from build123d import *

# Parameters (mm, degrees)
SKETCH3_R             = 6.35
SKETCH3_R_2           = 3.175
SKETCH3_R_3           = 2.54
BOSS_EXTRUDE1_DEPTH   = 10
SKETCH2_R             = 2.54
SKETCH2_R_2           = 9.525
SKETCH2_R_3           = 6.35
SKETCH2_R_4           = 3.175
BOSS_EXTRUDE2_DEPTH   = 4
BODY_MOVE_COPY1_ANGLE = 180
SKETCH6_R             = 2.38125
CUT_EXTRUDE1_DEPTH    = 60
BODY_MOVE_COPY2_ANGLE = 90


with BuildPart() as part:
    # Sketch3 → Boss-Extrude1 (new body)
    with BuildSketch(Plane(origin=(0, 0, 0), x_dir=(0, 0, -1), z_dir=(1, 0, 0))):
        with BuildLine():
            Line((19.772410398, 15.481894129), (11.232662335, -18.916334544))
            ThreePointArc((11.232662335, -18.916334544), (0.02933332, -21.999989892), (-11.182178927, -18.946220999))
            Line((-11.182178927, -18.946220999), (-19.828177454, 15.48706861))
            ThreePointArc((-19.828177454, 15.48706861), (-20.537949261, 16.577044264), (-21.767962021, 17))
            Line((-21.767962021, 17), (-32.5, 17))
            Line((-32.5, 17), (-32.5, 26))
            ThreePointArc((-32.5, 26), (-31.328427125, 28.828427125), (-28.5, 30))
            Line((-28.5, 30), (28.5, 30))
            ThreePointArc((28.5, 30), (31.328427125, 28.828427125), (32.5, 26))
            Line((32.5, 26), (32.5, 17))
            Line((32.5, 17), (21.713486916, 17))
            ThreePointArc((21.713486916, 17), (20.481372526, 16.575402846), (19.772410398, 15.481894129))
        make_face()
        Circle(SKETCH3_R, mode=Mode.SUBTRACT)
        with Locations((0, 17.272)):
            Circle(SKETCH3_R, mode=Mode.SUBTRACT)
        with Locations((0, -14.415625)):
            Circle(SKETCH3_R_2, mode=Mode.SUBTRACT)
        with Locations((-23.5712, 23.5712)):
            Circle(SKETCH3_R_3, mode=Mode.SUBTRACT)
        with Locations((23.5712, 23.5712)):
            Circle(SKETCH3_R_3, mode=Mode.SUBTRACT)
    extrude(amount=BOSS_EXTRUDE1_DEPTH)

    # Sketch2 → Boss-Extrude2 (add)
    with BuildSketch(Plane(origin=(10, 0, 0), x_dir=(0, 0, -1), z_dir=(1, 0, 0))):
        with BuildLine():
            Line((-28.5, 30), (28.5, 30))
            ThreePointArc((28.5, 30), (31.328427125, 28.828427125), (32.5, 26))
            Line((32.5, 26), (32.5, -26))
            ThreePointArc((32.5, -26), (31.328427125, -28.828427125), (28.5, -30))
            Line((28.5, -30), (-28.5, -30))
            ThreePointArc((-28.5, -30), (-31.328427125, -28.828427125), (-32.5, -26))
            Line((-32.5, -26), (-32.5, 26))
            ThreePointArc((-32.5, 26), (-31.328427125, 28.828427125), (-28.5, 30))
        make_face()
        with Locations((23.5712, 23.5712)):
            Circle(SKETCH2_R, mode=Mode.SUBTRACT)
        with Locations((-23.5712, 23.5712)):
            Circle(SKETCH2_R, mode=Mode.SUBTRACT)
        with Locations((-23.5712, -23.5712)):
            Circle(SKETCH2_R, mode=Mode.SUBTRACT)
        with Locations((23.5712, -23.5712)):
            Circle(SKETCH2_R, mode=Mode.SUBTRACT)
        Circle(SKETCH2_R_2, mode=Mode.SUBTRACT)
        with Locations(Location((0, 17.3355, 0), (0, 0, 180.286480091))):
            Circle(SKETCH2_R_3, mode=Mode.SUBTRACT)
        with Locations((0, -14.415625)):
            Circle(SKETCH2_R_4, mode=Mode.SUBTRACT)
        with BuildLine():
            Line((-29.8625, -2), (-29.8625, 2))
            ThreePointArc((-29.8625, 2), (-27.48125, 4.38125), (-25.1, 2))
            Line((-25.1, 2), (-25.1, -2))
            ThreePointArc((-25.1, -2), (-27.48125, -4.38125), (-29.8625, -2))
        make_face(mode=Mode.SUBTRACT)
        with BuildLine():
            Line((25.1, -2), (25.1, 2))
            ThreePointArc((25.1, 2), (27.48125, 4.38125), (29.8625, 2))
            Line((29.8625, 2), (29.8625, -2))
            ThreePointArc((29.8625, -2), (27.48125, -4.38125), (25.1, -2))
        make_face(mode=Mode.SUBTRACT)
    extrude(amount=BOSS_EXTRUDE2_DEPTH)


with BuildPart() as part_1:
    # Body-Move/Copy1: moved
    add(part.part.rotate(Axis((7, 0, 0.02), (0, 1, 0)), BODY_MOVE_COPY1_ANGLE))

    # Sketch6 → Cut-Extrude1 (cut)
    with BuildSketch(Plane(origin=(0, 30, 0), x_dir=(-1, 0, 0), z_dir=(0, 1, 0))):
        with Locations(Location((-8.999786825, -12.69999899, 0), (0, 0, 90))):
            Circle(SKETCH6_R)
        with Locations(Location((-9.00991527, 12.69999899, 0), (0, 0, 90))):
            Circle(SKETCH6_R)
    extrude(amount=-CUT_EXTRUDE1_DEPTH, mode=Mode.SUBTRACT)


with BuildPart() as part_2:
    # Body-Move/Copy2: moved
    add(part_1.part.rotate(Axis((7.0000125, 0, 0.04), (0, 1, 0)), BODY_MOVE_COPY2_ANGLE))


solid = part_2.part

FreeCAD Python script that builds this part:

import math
import FreeCAD as App
import Part
import Sketcher
from FreeCAD import Vector
Q = App.Units.Quantity

doc = App.newDocument("Part")
body = doc.addObject("PartDesign::Body", "Body")

sketch1 = body.newObject("Sketcher::SketchObject", "Sketch")
sketch1.AttachmentSupport = (doc.getObject("YZ_Plane"), [""])
sketch1.MapMode = "FlatFace"
sketch1.addGeometry([
    Part.LineSegment(Vector(-18.916335, -11.232662, 0), Vector(15.481894, -19.77241, 0)),
    Part.ArcOfCircle(Part.Circle(Vector(15, -21.713487, 0), Vector(0, 0, 1), 2), math.radians(0), math.radians(76.057556)),
    Part.LineSegment(Vector(17, -21.713487, 0), Vector(17, -32.5, 0)),
    Part.LineSegment(Vector(17, -32.5, 0), Vector(26, -32.5, 0)),
    Part.ArcOfCircle(Part.Circle(Vector(26, -28.5, 0), Vector(0, 0, 1), 4), math.radians(-90), math.radians(0)),
    Part.LineSegment(Vector(30, -28.5, 0), Vector(30, 28.5, 0)),
    Part.ArcOfCircle(Part.Circle(Vector(26, 28.5, 0), Vector(0, 0, 1), 4), math.radians(0), math.radians(90)),
    Part.LineSegment(Vector(26, 32.5, 0), Vector(17, 32.5, 0)),
    Part.LineSegment(Vector(17, 32.5, 0), Vector(17, 21.767962, 0)),
    Part.ArcOfCircle(Part.Circle(Vector(15, 21.767962, 0), Vector(0, 0, 1), 2), math.radians(-75.904768), math.radians(0)),
    Part.LineSegment(Vector(15.487069, 19.828177, 0), Vector(-18.946221, 11.182179, 0)),
    Part.ArcOfCircle(Part.Circle(Vector(0, 0, 0), Vector(0, 0, 1), 22.000009), math.radians(149.450628), math.radians(210.702161)),
    Part.Circle(Vector(-14.415625, 0, 0), Vector(0, 0, 1), 3.175),
    Part.Circle(Vector(0, 0, 0), Vector(0, 0, 1), 6.35),
    Part.Circle(Vector(23.5712, -23.5712, 0), Vector(0, 0, 1), 2.54),
    Part.Circle(Vector(17.272, 0, 0), Vector(0, 0, 1), 6.35),
    Part.Circle(Vector(23.5712, 23.5712, 0), Vector(0, 0, 1), 2.54),
], False)
sketch1.addConstraint([
    Sketcher.Constraint("Coincident", 0, 2, 1, 2),
    Sketcher.Constraint("Coincident", 1, 1, 2, 1),
    Sketcher.Constraint("Coincident", 2, 2, 3, 1),
    Sketcher.Constraint("Coincident", 3, 2, 4, 1),
    Sketcher.Constraint("Coincident", 4, 2, 5, 1),
    Sketcher.Constraint("Coincident", 5, 2, 6, 1),
    Sketcher.Constraint("Coincident", 6, 2, 7, 1),
    Sketcher.Constraint("Coincident", 7, 2, 8, 1),
    Sketcher.Constraint("Coincident", 8, 2, 9, 2),
    Sketcher.Constraint("Coincident", 9, 1, 10, 1),
    Sketcher.Constraint("Coincident", 10, 2, 11, 1),
    Sketcher.Constraint("Coincident", 11, 2, 0, 1),
    Sketcher.Constraint("Vertical", 2),
    Sketcher.Constraint("Horizontal", 3),
    Sketcher.Constraint("Vertical", 5),
    Sketcher.Constraint("Horizontal", 7),
    Sketcher.Constraint("Vertical", 8),
    Sketcher.Constraint("Coincident", 11, 3, -1, 1),
    Sketcher.Constraint("Coincident", 13, 3, -1, 1),
    Sketcher.Constraint("PointOnObject", 12, 3, -1),
    Sketcher.Constraint("PointOnObject", 15, 3, -1),
    Sketcher.Constraint("Radius", 1, Q("2 mm")),
    Sketcher.Constraint("Radius", 4, Q("4 mm")),
    Sketcher.Constraint("Radius", 6, Q("4 mm")),
    Sketcher.Constraint("Radius", 9, Q("2 mm")),
    Sketcher.Constraint("Diameter", 13, Q("12.7 mm")),
    Sketcher.Constraint("Diameter", 15, Q("12.7 mm")),
    Sketcher.Constraint("Diameter", 12, Q("6.35 mm")),
    Sketcher.Constraint("Diameter", 14, Q("5.08 mm")),
    Sketcher.Constraint("Diameter", 16, Q("5.08 mm")),
    Sketcher.Constraint("DistanceX", 3, 1, 3, 2, Q("9 mm")),
    Sketcher.Constraint("DistanceX", 7, 2, 7, 1, Q("9 mm")),
    Sketcher.Constraint("DistanceY", 5, 1, 5, 2, Q("57 mm")),
    Sketcher.Constraint("DistanceX", -1, 1, 1, 3, Q("15 mm")),
    Sketcher.Constraint("DistanceX", -1, 1, 4, 3, Q("26 mm")),
    Sketcher.Constraint("DistanceX", -1, 1, 9, 3, Q("15 mm")),
    Sketcher.Constraint("DistanceY", 4, 3, 6, 3, Q("57 mm")),
    Sketcher.Constraint("DistanceY", 3, 2, 4, 2, Q("4 mm")),
    Sketcher.Constraint("DistanceY", 4, 3, -1, 1, Q("28.5 mm")),
    Sketcher.Constraint("Radius", 11, Q("22.000009 mm")),
    Sketcher.Constraint("DistanceX", -1, 1, 15, 3, Q("17.272 mm")),
    Sketcher.Constraint("DistanceY", 10, 2, 9, 1, Q("8.645999 mm")),
    Sketcher.Constraint("DistanceX", -1, 1, 14, 3, Q("23.5712 mm")),
    Sketcher.Constraint("DistanceY", 14, 3, -1, 1, Q("23.5712 mm")),
    Sketcher.Constraint("DistanceX", -1, 1, 16, 3, Q("23.5712 mm")),
    Sketcher.Constraint("DistanceY", -1, 1, 16, 3, Q("23.5712 mm")),
    Sketcher.Constraint("Distance", 10, Q("35.502179 mm")),
    Sketcher.Constraint("DistanceY", 2, 2, 2, 1, Q("10.786513 mm")),
    Sketcher.Constraint("DistanceY", 8, 2, 8, 1, Q("10.732038 mm")),
    Sketcher.Constraint("DistanceY", 0, 2, -1, 1, Q("19.77241 mm")),
    Sketcher.Constraint("DistanceX", -1, 1, 9, 1, Q("15.487069 mm")),
    Sketcher.Constraint("DistanceY", 1, 3, 9, 3, Q("43.481449 mm")),
    Sketcher.Constraint("DistanceX", 11, 2, 12, 3, Q("4.50071 mm")),
    Sketcher.Constraint("DistanceY", 11, 2, 10, 2, Q("22.414841 mm")),
])
pad1 = body.newObject("PartDesign::Pad", "Pad")
pad1.Profile = sketch1
pad1.Length = 10

sketch2 = body.newObject("Sketcher::SketchObject", "Sketch001")
sketch2.AttachmentSupport = (doc.getObject("YZ_Plane"), [""])
sketch2.MapMode = "FlatFace"
sketch2.AttachmentOffset = App.Placement(Vector(0, 0, 10), App.Rotation())
sketch2.addGeometry([
    Part.LineSegment(Vector(30, -28.5, 0), Vector(30, 28.5, 0)),
    Part.ArcOfCircle(Part.Circle(Vector(26, 28.5, 0), Vector(0, 0, 1), 4), math.radians(0), math.radians(90)),
    Part.LineSegment(Vector(26, 32.5, 0), Vector(-26, 32.5, 0)),
    Part.ArcOfCircle(Part.Circle(Vector(-26, 28.5, 0), Vector(0, 0, 1), 4), math.radians(90), math.radians(180)),
    Part.LineSegment(Vector(-30, 28.5, 0), Vector(-30, -28.5, 0)),
    Part.ArcOfCircle(Part.Circle(Vector(-26, -28.5, 0), Vector(0, 0, 1), 4), math.radians(180), math.radians(270)),
    Part.LineSegment(Vector(-26, -32.5, 0), Vector(26, -32.5, 0)),
    Part.ArcOfCircle(Part.Circle(Vector(26, -28.5, 0), Vector(0, 0, 1), 4), math.radians(-90), math.radians(0)),
    Part.Circle(Vector(-23.5712, -23.5712, 0), Vector(0, 0, 1), 2.54),
    Part.Circle(Vector(-14.415625, 0, 0), Vector(0, 0, 1), 3.175),
    Part.LineSegment(Vector(-2, -25.1, 0), Vector(2, -25.1, 0)),
    Part.ArcOfCircle(Part.Circle(Vector(2, -27.48125, 0), Vector(0, 0, 1), 2.38125), math.radians(-90), math.radians(90)),
    Part.LineSegment(Vector(2, -29.8625, 0), Vector(-2, -29.8625, 0)),
    Part.ArcOfCircle(Part.Circle(Vector(-2, -27.48125, 0), Vector(0, 0, 1), 2.38125), math.radians(90), math.radians(270)),
    Part.Circle(Vector(0, 0, 0), Vector(0, 0, 1), 9.525),
    Part.Circle(Vector(-23.5712, 23.5712, 0), Vector(0, 0, 1), 2.54),
    Part.LineSegment(Vector(-2, 29.8625, 0), Vector(2, 29.8625, 0)),
    Part.ArcOfCircle(Part.Circle(Vector(2, 27.48125, 0), Vector(0, 0, 1), 2.38125), math.radians(-90), math.radians(90)),
    Part.LineSegment(Vector(2, 25.1, 0), Vector(-2, 25.1, 0)),
    Part.ArcOfCircle(Part.Circle(Vector(-2, 27.48125, 0), Vector(0, 0, 1), 2.38125), math.radians(90), math.radians(270)),
    Part.Circle(Vector(23.5712, -23.5712, 0), Vector(0, 0, 1), 2.54),
    Part.Circle(Vector(17.3355, 0, 0), Vector(0, 0, 1), 6.35),
    Part.Circle(Vector(23.5712, 23.5712, 0), Vector(0, 0, 1), 2.54),
], False)
sketch2.addConstraint([
    Sketcher.Constraint("Tangent", 0, 2, 1, 1),
    Sketcher.Constraint("Tangent", 1, 2, 2, 1),
    Sketcher.Constraint("Tangent", 2, 2, 3, 1),
    Sketcher.Constraint("Tangent", 3, 2, 4, 1),
    Sketcher.Constraint("Tangent", 4, 2, 5, 1),
    Sketcher.Constraint("Tangent", 5, 2, 6, 1),
    Sketcher.Constraint("Tangent", 6, 2, 7, 1),
    Sketcher.Constraint("Tangent", 7, 2, 0, 1),
    Sketcher.Constraint("Tangent", 10, 2, 11, 2),
    Sketcher.Constraint("Tangent", 11, 1, 12, 1),
    Sketcher.Constraint("Tangent", 12, 2, 13, 2),
    Sketcher.Constraint("Tangent", 13, 1, 10, 1),
    Sketcher.Constraint("Tangent", 16, 2, 17, 2),
    Sketcher.Constraint("Tangent", 17, 1, 18, 1),
    Sketcher.Constraint("Tangent", 18, 2, 19, 2),
    Sketcher.Constraint("Tangent", 19, 1, 16, 1),
    Sketcher.Constraint("Vertical", 0),
    Sketcher.Constraint("Horizontal", 2),
    Sketcher.Constraint("Vertical", 4),
    Sketcher.Constraint("Horizontal", 6),
    Sketcher.Constraint("Horizontal", 10),
    Sketcher.Constraint("Horizontal", 12),
    Sketcher.Constraint("Horizontal", 16),
    Sketcher.Constraint("Horizontal", 18),
    Sketcher.Constraint("Coincident", 14, 3, -1, 1),
    Sketcher.Constraint("Equal", 1, 3),
    Sketcher.Constraint("Equal", 3, 5),
    Sketcher.Constraint("Equal", 5, 7),
    Sketcher.Constraint("Equal", 8, 15),
    Sketcher.Constraint("Equal", 13, 17),
    Sketcher.Constraint("Equal", 15, 20),
    Sketcher.Constraint("Equal", 20, 22),
    Sketcher.Constraint("Symmetric", 1, 3, 5, 3, -1, 1),
    Sketcher.Constraint("Symmetric", 13, 3, 17, 3, -1, 1),
    Sketcher.Constraint("Symmetric", 15, 3, 20, 3, -1, 1),
    Sketcher.Constraint("Symmetric", 8, 3, 22, 3, -1, 1),
    Sketcher.Constraint("Symmetric", 8, 3, 20, 3, -2),
    Sketcher.Constraint("PointOnObject", 9, 3, -1),
    Sketcher.Constraint("PointOnObject", 21, 3, -1),
    Sketcher.Constraint("Vertical", 11, 3, 17, 3),
    Sketcher.Constraint("Vertical", 13, 3, 19, 3),
    Sketcher.Constraint("Radius", 1, Q("4 mm")),
    Sketcher.Constraint("Diameter", 21, Q("12.7 mm")),
    Sketcher.Constraint("Diameter", 8, Q("5.08 mm")),
    Sketcher.Constraint("Diameter", 9, Q("6.35 mm")),
    Sketcher.Constraint("Diameter", 14, Q("19.05 mm")),
    Sketcher.Constraint("DistanceX", 2, 2, 2, 1, Q("52 mm")),
    Sketcher.Constraint("DistanceX", 10, 1, 10, 2, Q("4 mm")),
    Sketcher.Constraint("DistanceY", 0, 1, 0, 2, Q("57 mm")),
    Sketcher.Constraint("DistanceY", 10, 2, -1, 1, Q("25.1 mm")),
    Sketcher.Constraint("Radius", 11, Q("2.38125 mm")),
    Sketcher.Constraint("DistanceX", 8, 3, -1, 1, Q("23.5712 mm")),
    Sketcher.Constraint("DistanceY", 8, 3, -1, 1, Q("23.5712 mm")),
    Sketcher.Constraint("DistanceX", -1, 1, 21, 3, Q("17.3355 mm")),
    Sketcher.Constraint("DistanceX", 9, 3, -1, 1, Q("14.415625 mm")),
])
pad2 = body.newObject("PartDesign::Pad", "Pad001")
pad2.Profile = sketch2
pad2.Length = 4
body2 = doc.addObject("PartDesign::Body", "Body001")
doc.recompute()

body.Placement = App.Placement(Vector(14, 0, 0.04), App.Rotation(Vector(0, 1, 0), 180))
boolean = body2.newObject("PartDesign::Boolean", "Boolean")
boolean.Type = "Fuse"
boolean.addObjects([body])

sketch3 = body2.newObject("Sketcher::SketchObject", "Sketch002")
sketch3.AttachmentSupport = (doc.getObject("XZ_Plane001"), [""])
sketch3.MapMode = "FlatFace"
sketch3.AttachmentOffset = App.Placement(Vector(0, 0, -30), App.Rotation())
sketch3.addGeometry([
    Part.Circle(Vector(8.999787, -12.699999, 0), Vector(0, 0, 1), 2.38125),
    Part.Circle(Vector(9.009915, 12.699999, 0), Vector(0, 0, 1), 2.38125),
], False)
sketch3.addConstraint([
    Sketcher.Constraint("Equal", 0, 1),
    Sketcher.Constraint("Diameter", 0, Q("4.7625 mm")),
    Sketcher.Constraint("DistanceY", 0, 3, -1, 1, Q("12.699999 mm")),
    Sketcher.Constraint("DistanceY", -1, 1, 1, 3, Q("12.699999 mm")),
    Sketcher.Constraint("DistanceX", 0, 3, 1, 3, Q("0.010128 mm")),
    Sketcher.Constraint("DistanceX", -1, 1, 0, 3, Q("8.999787 mm")),
])
pocket1 = body2.newObject("PartDesign::Pocket", "Pocket")
pocket1.Profile = sketch3
pocket1.Length = 60
pocket1.Reversed = True
body3 = doc.addObject("PartDesign::Body", "Body002")
doc.recompute()

body2.Placement = App.Placement(Vector(6.960012, 0, 7.040013), App.Rotation(Vector(0, 1, 0), 90))
boolean2 = body3.newObject("PartDesign::Boolean", "Boolean001")
boolean2.Type = "Fuse"
boolean2.addObjects([body2])

doc.recompute()
